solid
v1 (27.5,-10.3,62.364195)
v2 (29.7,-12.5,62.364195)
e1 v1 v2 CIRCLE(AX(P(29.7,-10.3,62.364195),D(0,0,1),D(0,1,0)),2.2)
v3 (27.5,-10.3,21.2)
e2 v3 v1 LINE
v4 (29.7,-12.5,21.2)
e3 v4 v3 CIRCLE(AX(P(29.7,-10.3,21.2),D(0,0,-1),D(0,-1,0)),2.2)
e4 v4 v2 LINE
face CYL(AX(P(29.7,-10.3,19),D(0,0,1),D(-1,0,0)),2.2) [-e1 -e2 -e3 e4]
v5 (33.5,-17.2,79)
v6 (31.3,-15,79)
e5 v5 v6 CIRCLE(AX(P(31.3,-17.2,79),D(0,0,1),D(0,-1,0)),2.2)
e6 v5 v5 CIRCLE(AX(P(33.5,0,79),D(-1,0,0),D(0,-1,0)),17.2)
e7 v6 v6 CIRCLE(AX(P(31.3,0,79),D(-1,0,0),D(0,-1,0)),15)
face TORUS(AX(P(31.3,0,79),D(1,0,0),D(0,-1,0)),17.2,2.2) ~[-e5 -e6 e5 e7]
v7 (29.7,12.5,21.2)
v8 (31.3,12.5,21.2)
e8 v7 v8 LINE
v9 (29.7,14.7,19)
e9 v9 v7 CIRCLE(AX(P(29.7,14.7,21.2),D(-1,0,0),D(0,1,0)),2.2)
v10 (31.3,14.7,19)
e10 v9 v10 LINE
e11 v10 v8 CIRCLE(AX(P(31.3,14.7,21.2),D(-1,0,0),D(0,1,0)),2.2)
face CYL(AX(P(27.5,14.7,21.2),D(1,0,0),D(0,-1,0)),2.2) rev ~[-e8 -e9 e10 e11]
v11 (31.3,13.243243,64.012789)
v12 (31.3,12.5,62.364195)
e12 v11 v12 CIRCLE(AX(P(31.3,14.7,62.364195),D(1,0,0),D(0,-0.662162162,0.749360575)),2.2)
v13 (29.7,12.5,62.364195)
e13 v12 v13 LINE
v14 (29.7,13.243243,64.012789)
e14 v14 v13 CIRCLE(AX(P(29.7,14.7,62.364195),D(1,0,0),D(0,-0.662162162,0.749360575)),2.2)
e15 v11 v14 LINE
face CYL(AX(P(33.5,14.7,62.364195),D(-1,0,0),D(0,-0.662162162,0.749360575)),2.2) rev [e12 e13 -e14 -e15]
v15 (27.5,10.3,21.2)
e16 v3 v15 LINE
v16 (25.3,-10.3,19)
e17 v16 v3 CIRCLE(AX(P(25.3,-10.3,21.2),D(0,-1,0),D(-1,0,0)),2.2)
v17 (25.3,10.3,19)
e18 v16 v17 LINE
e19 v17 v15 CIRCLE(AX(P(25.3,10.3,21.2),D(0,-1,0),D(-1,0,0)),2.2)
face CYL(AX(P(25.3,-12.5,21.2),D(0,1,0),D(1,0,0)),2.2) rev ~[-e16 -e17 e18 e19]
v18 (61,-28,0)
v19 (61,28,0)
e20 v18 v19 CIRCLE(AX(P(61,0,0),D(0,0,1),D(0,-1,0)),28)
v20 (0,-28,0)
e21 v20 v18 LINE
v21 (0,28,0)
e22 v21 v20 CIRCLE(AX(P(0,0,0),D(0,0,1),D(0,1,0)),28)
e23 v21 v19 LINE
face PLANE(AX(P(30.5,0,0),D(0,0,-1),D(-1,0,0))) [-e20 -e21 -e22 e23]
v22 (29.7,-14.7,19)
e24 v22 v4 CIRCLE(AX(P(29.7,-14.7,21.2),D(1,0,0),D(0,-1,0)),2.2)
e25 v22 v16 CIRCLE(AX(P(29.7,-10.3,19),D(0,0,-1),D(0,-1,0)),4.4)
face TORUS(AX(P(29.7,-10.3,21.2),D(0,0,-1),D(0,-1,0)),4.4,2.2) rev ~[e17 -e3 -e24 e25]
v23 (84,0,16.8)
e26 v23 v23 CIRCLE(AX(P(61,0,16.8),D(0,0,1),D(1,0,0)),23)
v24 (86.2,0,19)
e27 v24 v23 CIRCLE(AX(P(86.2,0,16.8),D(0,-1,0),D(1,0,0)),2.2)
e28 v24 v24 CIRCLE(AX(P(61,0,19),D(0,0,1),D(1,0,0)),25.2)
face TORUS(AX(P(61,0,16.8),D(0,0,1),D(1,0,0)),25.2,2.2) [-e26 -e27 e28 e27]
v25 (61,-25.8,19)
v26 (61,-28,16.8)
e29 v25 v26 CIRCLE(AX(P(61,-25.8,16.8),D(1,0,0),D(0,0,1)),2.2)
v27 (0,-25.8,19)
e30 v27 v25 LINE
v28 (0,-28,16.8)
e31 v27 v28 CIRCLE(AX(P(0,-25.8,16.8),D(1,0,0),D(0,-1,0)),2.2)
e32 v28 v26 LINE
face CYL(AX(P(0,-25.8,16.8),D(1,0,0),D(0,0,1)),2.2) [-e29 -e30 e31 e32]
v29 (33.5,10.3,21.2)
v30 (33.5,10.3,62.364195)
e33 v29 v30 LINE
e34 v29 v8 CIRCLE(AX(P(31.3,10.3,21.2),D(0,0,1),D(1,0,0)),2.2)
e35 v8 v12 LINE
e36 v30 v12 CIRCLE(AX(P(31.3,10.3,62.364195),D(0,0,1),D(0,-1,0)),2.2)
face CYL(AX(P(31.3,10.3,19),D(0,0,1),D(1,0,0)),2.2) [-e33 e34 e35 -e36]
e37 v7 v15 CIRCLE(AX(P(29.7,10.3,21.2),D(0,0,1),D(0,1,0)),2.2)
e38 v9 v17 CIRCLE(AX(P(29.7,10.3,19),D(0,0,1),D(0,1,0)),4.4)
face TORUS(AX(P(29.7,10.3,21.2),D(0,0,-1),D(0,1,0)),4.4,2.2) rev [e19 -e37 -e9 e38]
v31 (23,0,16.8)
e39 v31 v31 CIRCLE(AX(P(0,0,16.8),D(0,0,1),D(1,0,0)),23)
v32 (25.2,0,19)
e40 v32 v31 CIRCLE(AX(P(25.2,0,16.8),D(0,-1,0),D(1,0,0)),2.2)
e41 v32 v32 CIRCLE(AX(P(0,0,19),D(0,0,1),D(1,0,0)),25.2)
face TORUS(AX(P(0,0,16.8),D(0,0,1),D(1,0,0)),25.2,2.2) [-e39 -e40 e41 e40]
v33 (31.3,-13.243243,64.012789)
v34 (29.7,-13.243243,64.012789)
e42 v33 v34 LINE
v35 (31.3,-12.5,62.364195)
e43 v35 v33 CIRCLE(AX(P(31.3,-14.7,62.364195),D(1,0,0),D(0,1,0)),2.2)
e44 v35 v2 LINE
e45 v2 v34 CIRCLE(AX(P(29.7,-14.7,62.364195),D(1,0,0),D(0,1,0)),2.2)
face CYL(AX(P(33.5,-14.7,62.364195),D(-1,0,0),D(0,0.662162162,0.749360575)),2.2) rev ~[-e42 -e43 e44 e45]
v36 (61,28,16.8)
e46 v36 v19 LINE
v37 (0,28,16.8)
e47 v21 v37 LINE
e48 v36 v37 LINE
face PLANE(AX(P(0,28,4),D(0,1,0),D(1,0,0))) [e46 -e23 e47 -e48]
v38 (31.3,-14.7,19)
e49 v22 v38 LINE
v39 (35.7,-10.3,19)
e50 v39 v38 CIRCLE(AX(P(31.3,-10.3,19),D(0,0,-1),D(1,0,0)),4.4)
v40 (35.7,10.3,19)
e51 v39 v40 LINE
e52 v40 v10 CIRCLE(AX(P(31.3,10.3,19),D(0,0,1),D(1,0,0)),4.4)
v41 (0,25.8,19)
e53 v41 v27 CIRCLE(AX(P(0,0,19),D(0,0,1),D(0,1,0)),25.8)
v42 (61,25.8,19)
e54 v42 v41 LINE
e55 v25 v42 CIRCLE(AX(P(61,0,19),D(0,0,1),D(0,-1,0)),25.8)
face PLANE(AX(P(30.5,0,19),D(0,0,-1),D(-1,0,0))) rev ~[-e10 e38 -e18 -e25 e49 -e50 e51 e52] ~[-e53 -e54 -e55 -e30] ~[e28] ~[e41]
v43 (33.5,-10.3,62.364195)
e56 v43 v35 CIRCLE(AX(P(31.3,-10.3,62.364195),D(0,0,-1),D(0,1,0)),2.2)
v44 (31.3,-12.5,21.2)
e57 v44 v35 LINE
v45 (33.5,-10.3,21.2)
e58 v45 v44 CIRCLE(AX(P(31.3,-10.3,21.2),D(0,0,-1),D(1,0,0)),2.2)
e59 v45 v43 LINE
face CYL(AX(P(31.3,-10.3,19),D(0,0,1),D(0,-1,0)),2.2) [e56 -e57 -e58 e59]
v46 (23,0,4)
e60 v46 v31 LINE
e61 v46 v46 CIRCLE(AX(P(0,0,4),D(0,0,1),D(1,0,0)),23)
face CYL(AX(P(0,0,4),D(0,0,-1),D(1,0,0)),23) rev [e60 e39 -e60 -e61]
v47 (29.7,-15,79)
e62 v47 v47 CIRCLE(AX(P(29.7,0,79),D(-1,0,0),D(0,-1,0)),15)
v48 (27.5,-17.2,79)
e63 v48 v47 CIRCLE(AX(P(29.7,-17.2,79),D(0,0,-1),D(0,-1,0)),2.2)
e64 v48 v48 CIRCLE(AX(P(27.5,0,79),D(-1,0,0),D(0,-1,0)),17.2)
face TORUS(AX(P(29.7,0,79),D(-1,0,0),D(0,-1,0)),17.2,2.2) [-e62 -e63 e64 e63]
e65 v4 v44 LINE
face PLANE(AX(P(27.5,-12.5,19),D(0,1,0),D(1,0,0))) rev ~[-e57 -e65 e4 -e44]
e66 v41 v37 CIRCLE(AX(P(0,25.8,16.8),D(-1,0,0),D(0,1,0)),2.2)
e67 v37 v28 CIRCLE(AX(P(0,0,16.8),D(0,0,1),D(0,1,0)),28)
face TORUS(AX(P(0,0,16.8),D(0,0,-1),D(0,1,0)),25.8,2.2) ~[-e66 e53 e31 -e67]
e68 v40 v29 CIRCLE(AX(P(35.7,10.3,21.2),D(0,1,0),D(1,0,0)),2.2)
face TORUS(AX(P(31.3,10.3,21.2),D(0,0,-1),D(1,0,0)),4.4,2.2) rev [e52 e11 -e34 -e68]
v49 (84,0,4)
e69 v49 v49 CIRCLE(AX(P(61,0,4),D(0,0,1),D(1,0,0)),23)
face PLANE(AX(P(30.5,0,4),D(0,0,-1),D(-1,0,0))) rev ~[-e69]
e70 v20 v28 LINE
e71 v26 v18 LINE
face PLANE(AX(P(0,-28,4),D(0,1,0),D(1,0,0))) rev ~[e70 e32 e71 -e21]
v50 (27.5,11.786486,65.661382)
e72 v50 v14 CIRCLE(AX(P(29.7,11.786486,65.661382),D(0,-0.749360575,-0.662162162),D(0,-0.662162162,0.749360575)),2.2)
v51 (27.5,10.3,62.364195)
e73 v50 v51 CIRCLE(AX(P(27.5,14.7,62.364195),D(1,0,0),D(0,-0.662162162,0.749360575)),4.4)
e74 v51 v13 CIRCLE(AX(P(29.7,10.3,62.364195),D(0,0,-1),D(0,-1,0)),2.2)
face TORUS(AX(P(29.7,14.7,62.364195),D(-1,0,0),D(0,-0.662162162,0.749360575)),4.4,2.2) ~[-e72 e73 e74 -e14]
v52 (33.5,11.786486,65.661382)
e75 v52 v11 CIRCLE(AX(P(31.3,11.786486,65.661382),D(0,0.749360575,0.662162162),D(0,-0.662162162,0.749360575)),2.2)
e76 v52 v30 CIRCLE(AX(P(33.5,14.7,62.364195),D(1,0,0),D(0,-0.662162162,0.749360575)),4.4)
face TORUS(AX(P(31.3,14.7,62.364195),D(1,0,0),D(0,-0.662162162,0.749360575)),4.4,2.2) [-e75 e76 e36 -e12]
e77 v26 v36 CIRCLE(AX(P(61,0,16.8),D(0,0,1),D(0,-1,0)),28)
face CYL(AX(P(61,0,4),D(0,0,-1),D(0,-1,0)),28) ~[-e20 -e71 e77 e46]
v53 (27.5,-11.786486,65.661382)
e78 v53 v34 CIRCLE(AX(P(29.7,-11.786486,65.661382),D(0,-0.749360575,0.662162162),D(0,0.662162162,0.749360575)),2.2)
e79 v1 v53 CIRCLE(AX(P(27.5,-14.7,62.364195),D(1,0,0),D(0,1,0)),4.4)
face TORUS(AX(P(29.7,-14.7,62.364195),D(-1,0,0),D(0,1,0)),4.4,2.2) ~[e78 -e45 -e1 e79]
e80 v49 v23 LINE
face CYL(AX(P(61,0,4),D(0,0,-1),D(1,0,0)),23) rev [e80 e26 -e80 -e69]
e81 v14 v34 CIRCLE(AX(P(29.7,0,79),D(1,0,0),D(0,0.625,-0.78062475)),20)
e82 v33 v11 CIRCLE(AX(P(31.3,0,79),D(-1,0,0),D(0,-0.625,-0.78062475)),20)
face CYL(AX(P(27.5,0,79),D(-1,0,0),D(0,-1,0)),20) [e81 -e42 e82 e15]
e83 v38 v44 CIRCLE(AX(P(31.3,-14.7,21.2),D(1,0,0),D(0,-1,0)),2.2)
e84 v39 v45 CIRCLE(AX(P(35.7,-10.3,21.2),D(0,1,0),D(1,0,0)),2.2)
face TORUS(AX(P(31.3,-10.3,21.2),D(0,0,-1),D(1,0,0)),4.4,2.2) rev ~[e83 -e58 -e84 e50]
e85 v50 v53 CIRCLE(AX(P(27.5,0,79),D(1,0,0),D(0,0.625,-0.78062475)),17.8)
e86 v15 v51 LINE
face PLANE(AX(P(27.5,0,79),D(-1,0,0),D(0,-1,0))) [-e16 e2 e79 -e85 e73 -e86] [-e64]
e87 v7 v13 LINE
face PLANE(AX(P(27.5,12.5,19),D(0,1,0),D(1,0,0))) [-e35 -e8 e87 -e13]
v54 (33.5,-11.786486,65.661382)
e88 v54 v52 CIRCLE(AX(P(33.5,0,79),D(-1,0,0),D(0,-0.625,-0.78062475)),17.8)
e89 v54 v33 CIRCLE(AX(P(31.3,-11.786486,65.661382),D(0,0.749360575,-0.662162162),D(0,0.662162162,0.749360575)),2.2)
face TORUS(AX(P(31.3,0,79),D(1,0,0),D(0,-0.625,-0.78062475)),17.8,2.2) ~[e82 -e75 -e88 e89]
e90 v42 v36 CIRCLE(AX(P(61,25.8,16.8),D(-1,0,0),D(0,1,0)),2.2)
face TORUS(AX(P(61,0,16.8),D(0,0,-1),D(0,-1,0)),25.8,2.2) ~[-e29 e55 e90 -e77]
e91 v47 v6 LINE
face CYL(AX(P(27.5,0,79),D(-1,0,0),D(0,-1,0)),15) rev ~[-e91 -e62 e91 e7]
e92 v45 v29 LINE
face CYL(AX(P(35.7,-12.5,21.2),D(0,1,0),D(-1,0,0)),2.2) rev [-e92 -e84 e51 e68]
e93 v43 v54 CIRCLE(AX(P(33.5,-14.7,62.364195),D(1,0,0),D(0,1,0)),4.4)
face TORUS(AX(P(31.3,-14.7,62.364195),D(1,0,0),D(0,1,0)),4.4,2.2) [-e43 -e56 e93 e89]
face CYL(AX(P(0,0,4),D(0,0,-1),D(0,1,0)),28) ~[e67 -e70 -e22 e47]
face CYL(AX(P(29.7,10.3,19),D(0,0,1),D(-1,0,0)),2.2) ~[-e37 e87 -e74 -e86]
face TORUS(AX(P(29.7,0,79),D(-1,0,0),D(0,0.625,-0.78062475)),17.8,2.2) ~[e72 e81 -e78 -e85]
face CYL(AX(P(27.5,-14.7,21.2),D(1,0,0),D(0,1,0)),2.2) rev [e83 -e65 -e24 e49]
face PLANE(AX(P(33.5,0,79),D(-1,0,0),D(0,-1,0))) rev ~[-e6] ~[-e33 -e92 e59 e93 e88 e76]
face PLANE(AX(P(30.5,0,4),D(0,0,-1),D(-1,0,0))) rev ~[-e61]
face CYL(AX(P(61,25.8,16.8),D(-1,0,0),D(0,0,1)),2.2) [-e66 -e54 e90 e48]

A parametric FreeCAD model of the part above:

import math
import FreeCAD as App
import Part
import Sketcher

V = App.Vector
Q = App.Units.Quantity


def edges_at(feature, points):
    """Names of the edges that pass closest to the given points."""
    edges = feature.Shape.Edges
    near = lambda p: min(range(len(edges)), key=lambda i: edges[i].distToShape(Part.Vertex(*p))[0])
    return sorted({f"Edge{near(p) + 1}" for p in points})


def add_polygon(sketch, points):
    """Adds a closed chain of lines whose ends are joined by coincident constraints."""
    first, n = sketch.GeometryCount, len(points)
    for a, b in zip(points, points[1:] + points[:1]):
        sketch.addGeometry(Part.LineSegment(App.Vector(*a, 0), App.Vector(*b, 0)), False)
    for i in range(n):
        sketch.addConstraint(Sketcher.Constraint("Coincident", first + i, 2, first + (i + 1) % n, 1))

doc = App.newDocument("Part")
body = doc.addObject("PartDesign::Body", "Body")

sketch1 = doc.addObject("Sketcher::SketchObject", "Sketch")
body.addObject(sketch1)
sketch1.AttachmentSupport = (doc.XY_Plane, [""])
sketch1.MapMode = "FlatFace"
sketch1.addGeometry(Part.LineSegment(V(61, 28, 0), V(0, 28, 0)), False)
sketch1.addGeometry(Part.ArcOfCircle(Part.Circle(V(0, 0, 0), V(0, 0, 1), 28), math.radians(90), math.radians(270)), False)
sketch1.addGeometry(Part.LineSegment(V(0, -28, 0), V(61, -28, 0)), False)
sketch1.addGeometry(Part.ArcOfCircle(Part.Circle(V(61, 0, 0), V(0, 0, 1), 28), math.radians(-90), math.radians(90)), False)
sketch1.addConstraint(Sketcher.Constraint("Tangent", 0, 2, 1, 1))
sketch1.addConstraint(Sketcher.Constraint("Tangent", 1, 2, 2, 1))
sketch1.addConstraint(Sketcher.Constraint("Tangent", 2, 2, 3, 1))
sketch1.addConstraint(Sketcher.Constraint("Tangent", 3, 2, 0, 1))
sketch1.addConstraint(Sketcher.Constraint("Horizontal", 0))
sketch1.addConstraint(Sketcher.Constraint("Horizontal", 2))
sketch1.addConstraint(Sketcher.Constraint("Coincident", 1, 3, -1, 1))
sketch1.addConstraint(Sketcher.Constraint("Radius", 1, Q("28 mm")))
sketch1.addConstraint(Sketcher.Constraint("DistanceX", 0, 2, 0, 1, Q("61 mm")))
pad1 = doc.addObject("PartDesign::Pad", "Pad")
body.addObject(pad1)
pad1.Profile = sketch1
pad1.Length = 4

sketch2 = doc.addObject("Sketcher::SketchObject", "Sketch001")
body.addObject(sketch2)
sketch2.AttachmentSupport = (doc.XY_Plane, [""])
sketch2.MapMode = "FlatFace"
sketch2.AttachmentOffset = App.Placement(V(0, 0, 4), App.Rotation())
sketch2.addGeometry(Part.LineSegment(V(61, 28, 0), V(0, 28, 0)), False)
sketch2.addGeometry(Part.ArcOfCircle(Part.Circle(V(0, 0, 0), V(0, 0, 1), 28), math.radians(90), math.radians(270)), False)
sketch2.addGeometry(Part.LineSegment(V(0, -28, 0), V(61, -28, 0)), False)
sketch2.addGeometry(Part.ArcOfCircle(Part.Circle(V(61, 0, 0), V(0, 0, 1), 28), math.radians(-90), math.radians(90)), False)
sketch2.addGeometry(Part.Circle(V(61, 0, 0), V(0, 0, 1), 23), False)
sketch2.addGeometry(Part.Circle(V(0, 0, 0), V(0, 0, 1), 23), False)
sketch2.addConstraint(Sketcher.Constraint("Tangent", 0, 2, 1, 1))
sketch2.addConstraint(Sketcher.Constraint("Tangent", 1, 2, 2, 1))
sketch2.addConstraint(Sketcher.Constraint("Tangent", 2, 2, 3, 1))
sketch2.addConstraint(Sketcher.Constraint("Tangent", 3, 2, 0, 1))
sketch2.addConstraint(Sketcher.Constraint("Horizontal", 0))
sketch2.addConstraint(Sketcher.Constraint("Horizontal", 2))
sketch2.addConstraint(Sketcher.Constraint("Coincident", 1, 3, -1, 1))
sketch2.addConstraint(Sketcher.Constraint("Coincident", 5, 3, -1, 1))
sketch2.addConstraint(Sketcher.Constraint("Coincident", 4, 3, 3, 3))
sketch2.addConstraint(Sketcher.Constraint("Equal", 4, 5))
sketch2.addConstraint(Sketcher.Constraint("Diameter", 4, Q("46 mm")))
sketch2.addConstraint(Sketcher.Constraint("Radius", 1, Q("28 mm")))
sketch2.addConstraint(Sketcher.Constraint("DistanceX", 0, 2, 0, 1, Q("61 mm")))
pad2 = doc.addObject("PartDesign::Pad", "Pad001")
body.addObject(pad2)
pad2.Profile = sketch2
pad2.Length = 15

sketch3 = doc.addObject("Sketcher::SketchObject", "Sketch002")
body.addObject(sketch3)
sketch3.AttachmentSupport = (doc.XY_Plane, [""])
sketch3.MapMode = "FlatFace"
sketch3.AttachmentOffset = App.Placement(V(0, 0, 19), App.Rotation())
add_polygon(sketch3, [(28, 12), (28, -12), (34, -12), (34, 12)])
sketch3.addConstraint(Sketcher.Constraint("Vertical", 0))
sketch3.addConstraint(Sketcher.Constraint("Horizontal", 1))
sketch3.addConstraint(Sketcher.Constraint("Vertical", 2))
sketch3.addConstraint(Sketcher.Constraint("Horizontal", 3))
sketch3.addConstraint(Sketcher.Constraint("DistanceX", 1, 1, 1, 2, Q("6 mm")))
sketch3.addConstraint(Sketcher.Constraint("DistanceY", 0, 2, 0, 1, Q("25 mm")))
sketch3.addConstraint(Sketcher.Constraint("DistanceX", -1, 1, 0, 2, Q("27.5 mm")))
sketch3.addConstraint(Sketcher.Constraint("DistanceY", 0, 2, -1, 1, Q("12.5 mm")))
pad3 = doc.addObject("PartDesign::Pad", "Pad002")
body.addObject(pad3)
pad3.Profile = sketch3
pad3.Length = 60

sketch4 = doc.addObject("Sketcher::SketchObject", "Sketch003")
body.addObject(sketch4)
sketch4.AttachmentSupport = (doc.YZ_Plane, [""])
sketch4.MapMode = "FlatFace"
sketch4.AttachmentOffset = App.Placement(V(0, 0, 27.5), App.Rotation())
sketch4.addGeometry(Part.Circle(V(0, 79, 0), V(0, 0, 1), 20), False)
sketch4.addConstraint(Sketcher.Constraint("PointOnObject", 0, 3, -2))
sketch4.addConstraint(Sketcher.Constraint("Diameter", 0, Q("40 mm")))
sketch4.addConstraint(Sketcher.Constraint("DistanceY", -1, 1, 0, 3, Q("79 mm")))
pad4 = doc.addObject("PartDesign::Pad", "Pad003")
body.addObject(pad4)
pad4.Profile = sketch4
pad4.Length = 6

sketch5 = doc.addObject("Sketcher::SketchObject", "Sketch004")
body.addObject(sketch5)
sketch5.AttachmentSupport = (doc.YZ_Plane, [""])
sketch5.MapMode = "FlatFace"
sketch5.AttachmentOffset = App.Placement(V(0, 0, 27.5), App.Rotation())
sketch5.addGeometry(Part.Circle(V(0, 79, 0), V(0, 0, 1), 15), False)
sketch5.addConstraint(Sketcher.Constraint("PointOnObject", 0, 3, -2))
sketch5.addConstraint(Sketcher.Constraint("Diameter", 0, Q("30 mm")))
sketch5.addConstraint(Sketcher.Constraint("DistanceY", -1, 1, 0, 3, Q("79 mm")))
pocket1 = doc.addObject("PartDesign::Pocket", "Pocket")
body.addObject(pocket1)
pocket1.Profile = sketch5
pocket1.Length = 6
pocket1.Reversed = True
doc.recompute()

fillet = doc.addObject("PartDesign::Fillet", "Fillet")
body.addObject(fillet)
fillet.Base = (pocket1, edges_at(pocket1, [
    (27.5, 0, 19),
    (27.5, 12.5, 41.194),
    (27.5, 15, 79),
    (27.5, -12.5, 41.194),
    (-28, 0, 19),
    (30.5, 28, 19),
    (30.5, -28, 19),
    (89, 0, 19),
    (-23, 0, 19),
    (33.5, 0, 19),
    (30.5, -12.5, 19),
    (30.5, 12.5, 19),
    (38, 0, 19),
    (33.5, -12.5, 41.194),
    (33.5, 15, 79),
    (33.5, 12.5, 41.194),
    (30.5, 12.5, 63.388),
    (27.5, 0, 99),
    (33.5, 0, 99),
    (33.5, 15, 79),
    (33.5, 15, 79),
    (33.5, 15, 79),
    (33.5, 15, 79),
    (33.5, 0, 99),
    (27.5, 15, 79),
    (27.5, 15, 79),
    (27.5, 15, 79),
    (33.5, 15, 79),
    (27.5, 15, 79),
    (27.5, 15, 79),
    (27.5, 0, 99),
    (30.5, -12.5, 63.388),
]))
fillet.Radius = 2.2

doc.recompute()
